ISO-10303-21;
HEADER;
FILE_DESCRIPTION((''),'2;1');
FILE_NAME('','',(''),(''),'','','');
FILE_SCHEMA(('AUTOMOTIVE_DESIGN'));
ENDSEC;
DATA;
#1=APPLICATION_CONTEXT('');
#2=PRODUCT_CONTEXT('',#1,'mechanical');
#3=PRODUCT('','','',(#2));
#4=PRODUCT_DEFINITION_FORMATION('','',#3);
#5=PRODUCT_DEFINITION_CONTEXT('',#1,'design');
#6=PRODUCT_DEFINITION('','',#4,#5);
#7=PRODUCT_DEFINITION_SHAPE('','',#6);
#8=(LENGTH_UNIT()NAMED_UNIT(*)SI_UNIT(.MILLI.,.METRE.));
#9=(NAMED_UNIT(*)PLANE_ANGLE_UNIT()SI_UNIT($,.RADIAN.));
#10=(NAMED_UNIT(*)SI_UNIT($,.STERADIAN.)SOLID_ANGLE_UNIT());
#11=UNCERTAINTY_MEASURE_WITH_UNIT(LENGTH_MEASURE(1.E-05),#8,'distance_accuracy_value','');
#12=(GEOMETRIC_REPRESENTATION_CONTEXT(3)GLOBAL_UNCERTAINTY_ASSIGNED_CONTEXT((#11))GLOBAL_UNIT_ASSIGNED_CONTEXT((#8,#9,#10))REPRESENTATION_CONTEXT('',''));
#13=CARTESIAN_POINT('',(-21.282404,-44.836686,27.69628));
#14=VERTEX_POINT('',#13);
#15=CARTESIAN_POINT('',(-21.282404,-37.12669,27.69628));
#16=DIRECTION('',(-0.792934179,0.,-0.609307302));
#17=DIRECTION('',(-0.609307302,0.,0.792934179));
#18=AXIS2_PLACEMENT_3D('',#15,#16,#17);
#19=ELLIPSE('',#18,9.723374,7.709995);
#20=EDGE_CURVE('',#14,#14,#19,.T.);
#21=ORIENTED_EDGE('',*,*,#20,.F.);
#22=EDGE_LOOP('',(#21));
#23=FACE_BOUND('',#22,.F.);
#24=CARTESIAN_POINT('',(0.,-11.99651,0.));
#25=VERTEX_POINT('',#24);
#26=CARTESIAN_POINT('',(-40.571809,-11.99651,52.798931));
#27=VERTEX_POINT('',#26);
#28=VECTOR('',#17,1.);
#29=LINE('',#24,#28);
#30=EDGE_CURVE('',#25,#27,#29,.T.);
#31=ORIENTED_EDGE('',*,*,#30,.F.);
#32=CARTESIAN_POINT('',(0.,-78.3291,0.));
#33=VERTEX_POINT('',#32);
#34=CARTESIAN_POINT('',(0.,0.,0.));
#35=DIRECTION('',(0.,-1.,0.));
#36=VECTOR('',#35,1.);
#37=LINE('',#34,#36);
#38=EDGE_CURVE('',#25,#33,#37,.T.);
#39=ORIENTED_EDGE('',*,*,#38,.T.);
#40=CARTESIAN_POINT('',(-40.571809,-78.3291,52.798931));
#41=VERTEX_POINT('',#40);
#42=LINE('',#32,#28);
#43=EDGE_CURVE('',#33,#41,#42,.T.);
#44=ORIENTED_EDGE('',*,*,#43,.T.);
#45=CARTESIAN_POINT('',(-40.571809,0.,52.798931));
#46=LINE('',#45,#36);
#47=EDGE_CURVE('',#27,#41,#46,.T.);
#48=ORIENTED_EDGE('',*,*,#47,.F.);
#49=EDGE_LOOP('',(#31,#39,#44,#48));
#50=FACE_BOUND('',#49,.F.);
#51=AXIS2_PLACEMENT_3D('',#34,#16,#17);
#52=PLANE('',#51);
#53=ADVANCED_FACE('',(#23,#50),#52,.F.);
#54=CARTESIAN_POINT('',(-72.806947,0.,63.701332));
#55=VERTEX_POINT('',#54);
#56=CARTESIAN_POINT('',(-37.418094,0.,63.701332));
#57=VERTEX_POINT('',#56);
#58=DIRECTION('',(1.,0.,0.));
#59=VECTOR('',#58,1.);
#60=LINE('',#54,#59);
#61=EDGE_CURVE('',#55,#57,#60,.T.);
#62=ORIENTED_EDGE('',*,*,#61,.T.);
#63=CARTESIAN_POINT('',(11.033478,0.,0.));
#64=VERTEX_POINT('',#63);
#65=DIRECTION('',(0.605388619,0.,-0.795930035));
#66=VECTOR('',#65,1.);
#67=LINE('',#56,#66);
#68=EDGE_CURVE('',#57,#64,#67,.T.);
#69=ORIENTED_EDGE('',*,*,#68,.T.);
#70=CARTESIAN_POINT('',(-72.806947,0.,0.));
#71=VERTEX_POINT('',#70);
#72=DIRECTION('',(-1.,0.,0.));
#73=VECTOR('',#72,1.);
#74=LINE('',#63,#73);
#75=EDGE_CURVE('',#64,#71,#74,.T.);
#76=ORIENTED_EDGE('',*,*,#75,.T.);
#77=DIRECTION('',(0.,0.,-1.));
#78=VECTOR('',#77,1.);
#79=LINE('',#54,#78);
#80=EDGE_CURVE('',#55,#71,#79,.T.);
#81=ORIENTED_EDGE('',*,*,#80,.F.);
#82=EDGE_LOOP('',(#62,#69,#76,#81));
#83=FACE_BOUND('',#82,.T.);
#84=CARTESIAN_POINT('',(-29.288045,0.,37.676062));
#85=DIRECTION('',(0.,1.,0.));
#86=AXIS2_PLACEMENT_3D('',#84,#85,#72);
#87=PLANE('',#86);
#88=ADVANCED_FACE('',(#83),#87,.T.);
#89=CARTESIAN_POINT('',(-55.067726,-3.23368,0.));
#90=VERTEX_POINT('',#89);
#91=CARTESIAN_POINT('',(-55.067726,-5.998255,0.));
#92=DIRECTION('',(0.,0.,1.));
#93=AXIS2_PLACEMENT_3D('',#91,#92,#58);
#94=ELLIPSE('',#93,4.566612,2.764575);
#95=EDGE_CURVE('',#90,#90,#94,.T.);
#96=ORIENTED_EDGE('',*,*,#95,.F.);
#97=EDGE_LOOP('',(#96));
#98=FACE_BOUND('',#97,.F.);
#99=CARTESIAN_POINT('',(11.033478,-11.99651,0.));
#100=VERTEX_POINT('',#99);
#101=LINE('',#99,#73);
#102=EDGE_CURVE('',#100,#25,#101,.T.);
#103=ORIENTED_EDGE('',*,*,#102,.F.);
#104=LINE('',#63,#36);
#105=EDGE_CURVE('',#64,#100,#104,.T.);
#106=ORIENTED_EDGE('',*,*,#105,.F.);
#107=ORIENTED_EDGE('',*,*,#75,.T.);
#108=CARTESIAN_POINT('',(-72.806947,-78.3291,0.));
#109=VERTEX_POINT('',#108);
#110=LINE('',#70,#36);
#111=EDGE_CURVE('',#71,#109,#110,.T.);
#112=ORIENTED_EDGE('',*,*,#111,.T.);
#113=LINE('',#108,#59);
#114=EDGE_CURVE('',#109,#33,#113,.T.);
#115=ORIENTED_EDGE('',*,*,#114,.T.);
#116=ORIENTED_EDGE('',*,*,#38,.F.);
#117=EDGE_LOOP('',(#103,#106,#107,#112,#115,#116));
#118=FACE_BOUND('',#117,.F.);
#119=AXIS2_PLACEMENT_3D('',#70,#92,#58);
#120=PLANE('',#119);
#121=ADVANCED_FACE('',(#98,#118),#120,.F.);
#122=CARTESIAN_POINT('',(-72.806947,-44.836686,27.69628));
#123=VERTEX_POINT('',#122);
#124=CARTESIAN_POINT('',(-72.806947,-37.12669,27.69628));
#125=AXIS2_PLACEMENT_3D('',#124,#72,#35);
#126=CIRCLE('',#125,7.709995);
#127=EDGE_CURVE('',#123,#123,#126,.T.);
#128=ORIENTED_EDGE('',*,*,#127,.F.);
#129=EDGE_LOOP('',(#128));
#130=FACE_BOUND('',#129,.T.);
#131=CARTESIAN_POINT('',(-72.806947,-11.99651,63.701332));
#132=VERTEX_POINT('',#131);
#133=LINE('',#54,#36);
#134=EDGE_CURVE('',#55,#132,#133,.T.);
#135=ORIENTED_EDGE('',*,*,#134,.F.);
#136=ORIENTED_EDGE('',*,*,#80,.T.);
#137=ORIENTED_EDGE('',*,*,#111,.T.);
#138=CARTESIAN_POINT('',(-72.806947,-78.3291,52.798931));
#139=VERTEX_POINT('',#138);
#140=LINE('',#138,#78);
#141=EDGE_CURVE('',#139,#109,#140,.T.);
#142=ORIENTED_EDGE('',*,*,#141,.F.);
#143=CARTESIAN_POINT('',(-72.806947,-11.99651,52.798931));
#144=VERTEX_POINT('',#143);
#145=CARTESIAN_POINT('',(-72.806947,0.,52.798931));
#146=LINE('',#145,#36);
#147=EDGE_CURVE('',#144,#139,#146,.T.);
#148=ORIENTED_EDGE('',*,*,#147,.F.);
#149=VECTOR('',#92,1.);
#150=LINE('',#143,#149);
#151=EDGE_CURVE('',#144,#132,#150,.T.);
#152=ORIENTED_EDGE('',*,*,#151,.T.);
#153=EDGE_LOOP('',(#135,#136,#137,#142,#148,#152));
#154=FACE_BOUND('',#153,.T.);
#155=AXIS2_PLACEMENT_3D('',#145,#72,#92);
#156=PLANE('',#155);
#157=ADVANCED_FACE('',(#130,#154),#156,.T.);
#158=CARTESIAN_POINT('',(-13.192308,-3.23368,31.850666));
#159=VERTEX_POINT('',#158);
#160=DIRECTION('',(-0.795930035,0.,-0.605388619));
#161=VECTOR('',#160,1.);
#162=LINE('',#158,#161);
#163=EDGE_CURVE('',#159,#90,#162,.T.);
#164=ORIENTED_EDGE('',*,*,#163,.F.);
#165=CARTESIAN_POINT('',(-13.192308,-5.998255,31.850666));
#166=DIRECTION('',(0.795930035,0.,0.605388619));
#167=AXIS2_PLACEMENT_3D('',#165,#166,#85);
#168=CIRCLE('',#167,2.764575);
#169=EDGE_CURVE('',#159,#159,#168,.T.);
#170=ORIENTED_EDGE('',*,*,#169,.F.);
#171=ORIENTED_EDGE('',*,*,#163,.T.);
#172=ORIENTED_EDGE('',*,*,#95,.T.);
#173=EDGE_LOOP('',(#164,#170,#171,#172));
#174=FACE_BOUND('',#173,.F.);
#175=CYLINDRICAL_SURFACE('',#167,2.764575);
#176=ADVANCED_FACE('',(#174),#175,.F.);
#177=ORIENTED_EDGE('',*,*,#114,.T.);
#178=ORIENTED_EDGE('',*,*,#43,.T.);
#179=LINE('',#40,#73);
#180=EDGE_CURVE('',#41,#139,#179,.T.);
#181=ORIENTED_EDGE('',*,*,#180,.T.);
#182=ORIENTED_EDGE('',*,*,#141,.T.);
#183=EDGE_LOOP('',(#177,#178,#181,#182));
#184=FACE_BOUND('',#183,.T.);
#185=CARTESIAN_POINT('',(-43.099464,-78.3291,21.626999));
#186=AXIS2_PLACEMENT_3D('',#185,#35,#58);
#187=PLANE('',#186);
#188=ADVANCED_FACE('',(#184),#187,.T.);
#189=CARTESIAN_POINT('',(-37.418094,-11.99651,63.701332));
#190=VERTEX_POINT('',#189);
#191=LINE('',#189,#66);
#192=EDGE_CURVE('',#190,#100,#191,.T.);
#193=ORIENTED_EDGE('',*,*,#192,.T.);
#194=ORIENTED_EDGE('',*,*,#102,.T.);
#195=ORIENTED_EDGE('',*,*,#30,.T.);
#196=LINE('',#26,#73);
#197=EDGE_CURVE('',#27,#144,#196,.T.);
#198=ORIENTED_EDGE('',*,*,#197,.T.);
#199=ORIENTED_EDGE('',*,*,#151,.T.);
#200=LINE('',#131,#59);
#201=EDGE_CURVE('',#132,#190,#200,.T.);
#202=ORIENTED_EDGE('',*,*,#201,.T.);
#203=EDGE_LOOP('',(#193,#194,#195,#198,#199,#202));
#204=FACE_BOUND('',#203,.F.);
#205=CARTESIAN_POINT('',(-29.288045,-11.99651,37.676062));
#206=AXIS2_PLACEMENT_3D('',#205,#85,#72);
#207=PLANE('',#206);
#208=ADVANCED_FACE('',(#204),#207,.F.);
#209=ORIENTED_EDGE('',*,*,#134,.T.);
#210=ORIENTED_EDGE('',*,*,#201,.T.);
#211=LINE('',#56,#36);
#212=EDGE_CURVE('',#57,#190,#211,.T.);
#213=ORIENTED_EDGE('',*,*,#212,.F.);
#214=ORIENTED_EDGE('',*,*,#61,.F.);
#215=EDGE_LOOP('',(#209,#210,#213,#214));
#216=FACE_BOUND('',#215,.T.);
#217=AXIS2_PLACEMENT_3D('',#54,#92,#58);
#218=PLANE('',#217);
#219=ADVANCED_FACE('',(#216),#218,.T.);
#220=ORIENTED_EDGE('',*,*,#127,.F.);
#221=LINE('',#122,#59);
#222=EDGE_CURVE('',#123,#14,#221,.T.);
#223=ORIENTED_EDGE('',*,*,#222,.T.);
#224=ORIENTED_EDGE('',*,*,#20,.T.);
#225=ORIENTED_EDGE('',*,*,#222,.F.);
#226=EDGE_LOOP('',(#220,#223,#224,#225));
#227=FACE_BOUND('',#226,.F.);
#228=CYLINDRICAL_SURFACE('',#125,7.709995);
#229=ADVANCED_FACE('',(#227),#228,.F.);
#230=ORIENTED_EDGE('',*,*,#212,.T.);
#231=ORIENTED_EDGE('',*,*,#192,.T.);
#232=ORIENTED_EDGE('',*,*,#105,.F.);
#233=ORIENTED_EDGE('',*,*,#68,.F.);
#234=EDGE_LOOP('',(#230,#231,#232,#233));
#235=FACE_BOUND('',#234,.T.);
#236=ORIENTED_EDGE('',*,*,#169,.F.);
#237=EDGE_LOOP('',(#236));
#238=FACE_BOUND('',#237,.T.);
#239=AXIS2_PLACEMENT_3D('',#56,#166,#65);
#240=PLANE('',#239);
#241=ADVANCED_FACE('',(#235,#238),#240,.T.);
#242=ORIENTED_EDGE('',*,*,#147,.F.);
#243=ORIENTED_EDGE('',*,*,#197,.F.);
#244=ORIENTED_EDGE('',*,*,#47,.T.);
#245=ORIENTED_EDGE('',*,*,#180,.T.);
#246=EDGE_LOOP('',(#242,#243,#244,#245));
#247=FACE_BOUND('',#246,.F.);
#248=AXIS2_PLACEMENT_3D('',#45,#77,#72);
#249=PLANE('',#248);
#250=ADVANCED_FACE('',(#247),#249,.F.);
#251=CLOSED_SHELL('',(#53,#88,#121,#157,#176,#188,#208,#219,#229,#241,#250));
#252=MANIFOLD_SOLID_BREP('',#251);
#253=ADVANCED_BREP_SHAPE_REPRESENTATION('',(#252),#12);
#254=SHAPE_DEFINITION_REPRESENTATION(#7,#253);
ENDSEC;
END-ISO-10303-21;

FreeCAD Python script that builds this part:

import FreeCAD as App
import Part
import Sketcher

V = App.Vector
Q = App.Units.Quantity


def add_polygon(sketch, points):
    """Adds a closed chain of lines whose ends are joined by coincident constraints."""
    first, n = sketch.GeometryCount, len(points)
    for a, b in zip(points, points[1:] + points[:1]):
        sketch.addGeometry(Part.LineSegment(App.Vector(*a, 0), App.Vector(*b, 0)), False)
    for i in range(n):
        sketch.addConstraint(Sketcher.Constraint("Coincident", first + i, 2, first + (i + 1) % n, 1))

doc = App.newDocument("Part")
params = doc.addObject("Spreadsheet::Sheet", "Params")
for row, (alias, value) in enumerate([
    ("pad1_length", "78.3291 mm"),
    ("pocket1_length", "68.99092 mm"),
    ("pad2_length", "11.99651 mm"),
], start=1):
    params.set(f"A{row}", alias)
    params.set(f"B{row}", "=" + value)
    params.setAlias(f"B{row}", alias)

body = doc.addObject("PartDesign::Body", "Body")

# Sketch on XZ plane
sketch1 = body.newObject("Sketcher::SketchObject", "Sketch")
sketch1.AttachmentSupport = (doc.getObject("XZ_Plane"), [""])
sketch1.MapMode = "FlatFace"
add_polygon(sketch1, [(-73, 0), (0, 0), (-41, 53), (-73, 53)])  # lines 0-3
sketch1.addConstraint(Sketcher.Constraint("Horizontal", 0))
sketch1.addConstraint(Sketcher.Constraint("Horizontal", 2))
sketch1.addConstraint(Sketcher.Constraint("Vertical", 3))
sketch1.addConstraint(Sketcher.Constraint("Coincident", 0, 2, -1, 1))
sketch1.addConstraint(Sketcher.Constraint("DistanceX", 2, 2, 2, 1, Q("32.235138 mm")))
sketch1.addConstraint(Sketcher.Constraint("DistanceY", 3, 2, 3, 1, Q("52.798931 mm")))
sketch1.addConstraint(Sketcher.Constraint("DistanceX", 0, 1, 0, 2, Q("72.806947 mm")))
pad1 = body.newObject("PartDesign::Pad", "Pad")
pad1.Profile = sketch1
pad1.setExpression("Length", "Params.pad1_length")

# Sketch on YZ plane
sketch2 = body.newObject("Sketcher::SketchObject", "Sketch001")
sketch2.AttachmentSupport = (doc.getObject("YZ_Plane"), [""])
sketch2.MapMode = "FlatFace"
sketch2.AttachmentOffset = App.Placement(V(0, 0, -72.806947), App.Rotation())
sketch2.addGeometry(Part.Circle(V(-37, 28, 0), V(0, 0, 1), 8), False)
sketch2.addConstraint(Sketcher.Constraint("Diameter", 0, Q("15.419991 mm")))
sketch2.addConstraint(Sketcher.Constraint("DistanceX", 0, 3, -1, 1, Q("37.12669 mm")))
sketch2.addConstraint(Sketcher.Constraint("DistanceY", -1, 1, 0, 3, Q("27.69628 mm")))
pocket1 = body.newObject("PartDesign::Pocket", "Pocket")
pocket1.Profile = sketch2
pocket1.setExpression("Length", "Params.pocket1_length")
pocket1.Reversed = True

# Sketch on XZ plane
sketch3 = body.newObject("Sketcher::SketchObject", "Sketch002")
sketch3.AttachmentSupport = (doc.getObject("XZ_Plane"), [""])
sketch3.MapMode = "FlatFace"
add_polygon(sketch3, [(0, 0), (-41, 53), (-73, 53), (-73, 64), (-37, 64), (11, 0)])  # lines 0-5
sketch3.addConstraint(Sketcher.Constraint("Horizontal", 1))
sketch3.addConstraint(Sketcher.Constraint("Vertical", 2))
sketch3.addConstraint(Sketcher.Constraint("Horizontal", 3))
sketch3.addConstraint(Sketcher.Constraint("Horizontal", 5))
sketch3.addConstraint(Sketcher.Constraint("Coincident", 5, 2, -1, 1))
sketch3.addConstraint(Sketcher.Constraint("DistanceY", 2, 1, 2, 2, Q("10.902401 mm")))
sketch3.addConstraint(Sketcher.Constraint("DistanceX", 1, 2, 1, 1, Q("32.235138 mm")))
sketch3.addConstraint(Sketcher.Constraint("DistanceX", 5, 2, 5, 1, Q("11.033478 mm")))
sketch3.addConstraint(Sketcher.Constraint("DistanceX", 3, 1, 3, 2, Q("35.388853 mm")))
sketch3.addConstraint(Sketcher.Constraint("DistanceX", 0, 2, -1, 1, Q("40.571809 mm")))
sketch3.addConstraint(Sketcher.Constraint("DistanceY", -1, 1, 0, 2, Q("52.798931 mm")))
pad2 = body.newObject("PartDesign::Pad", "Pad001")
pad2.Profile = sketch3
pad2.setExpression("Length", "Params.pad2_length")

# Sketch on an angled plane
sketch4 = body.newObject("Sketcher::SketchObject", "Sketch003")
sketch4.Placement = App.Placement(V(6.989759, 0, 5.316448), App.Rotation(V(0, 1, 0), V(-0.605388619, 0, 0.795930035), V(0.795930035, 0, 0.605388619), "ZXY"))
sketch4.addGeometry(Part.Circle(V(-6, 33.3, 0), V(0, 0, 1), 2.8), False)
sketch4.addConstraint(Sketcher.Constraint("Diameter", 0, Q("5.52915 mm")))
sketch4.addConstraint(Sketcher.Constraint("DistanceX", 0, 3, -1, 1, Q("5.998255 mm")))
sketch4.addConstraint(Sketcher.Constraint("DistanceY", -1, 1, 0, 3, Q("33.337374 mm")))
pocket2 = body.newObject("PartDesign::Pocket", "Pocket001")
pocket2.Profile = sketch4
pocket2.Type = "ThroughAll"

doc.recompute()
